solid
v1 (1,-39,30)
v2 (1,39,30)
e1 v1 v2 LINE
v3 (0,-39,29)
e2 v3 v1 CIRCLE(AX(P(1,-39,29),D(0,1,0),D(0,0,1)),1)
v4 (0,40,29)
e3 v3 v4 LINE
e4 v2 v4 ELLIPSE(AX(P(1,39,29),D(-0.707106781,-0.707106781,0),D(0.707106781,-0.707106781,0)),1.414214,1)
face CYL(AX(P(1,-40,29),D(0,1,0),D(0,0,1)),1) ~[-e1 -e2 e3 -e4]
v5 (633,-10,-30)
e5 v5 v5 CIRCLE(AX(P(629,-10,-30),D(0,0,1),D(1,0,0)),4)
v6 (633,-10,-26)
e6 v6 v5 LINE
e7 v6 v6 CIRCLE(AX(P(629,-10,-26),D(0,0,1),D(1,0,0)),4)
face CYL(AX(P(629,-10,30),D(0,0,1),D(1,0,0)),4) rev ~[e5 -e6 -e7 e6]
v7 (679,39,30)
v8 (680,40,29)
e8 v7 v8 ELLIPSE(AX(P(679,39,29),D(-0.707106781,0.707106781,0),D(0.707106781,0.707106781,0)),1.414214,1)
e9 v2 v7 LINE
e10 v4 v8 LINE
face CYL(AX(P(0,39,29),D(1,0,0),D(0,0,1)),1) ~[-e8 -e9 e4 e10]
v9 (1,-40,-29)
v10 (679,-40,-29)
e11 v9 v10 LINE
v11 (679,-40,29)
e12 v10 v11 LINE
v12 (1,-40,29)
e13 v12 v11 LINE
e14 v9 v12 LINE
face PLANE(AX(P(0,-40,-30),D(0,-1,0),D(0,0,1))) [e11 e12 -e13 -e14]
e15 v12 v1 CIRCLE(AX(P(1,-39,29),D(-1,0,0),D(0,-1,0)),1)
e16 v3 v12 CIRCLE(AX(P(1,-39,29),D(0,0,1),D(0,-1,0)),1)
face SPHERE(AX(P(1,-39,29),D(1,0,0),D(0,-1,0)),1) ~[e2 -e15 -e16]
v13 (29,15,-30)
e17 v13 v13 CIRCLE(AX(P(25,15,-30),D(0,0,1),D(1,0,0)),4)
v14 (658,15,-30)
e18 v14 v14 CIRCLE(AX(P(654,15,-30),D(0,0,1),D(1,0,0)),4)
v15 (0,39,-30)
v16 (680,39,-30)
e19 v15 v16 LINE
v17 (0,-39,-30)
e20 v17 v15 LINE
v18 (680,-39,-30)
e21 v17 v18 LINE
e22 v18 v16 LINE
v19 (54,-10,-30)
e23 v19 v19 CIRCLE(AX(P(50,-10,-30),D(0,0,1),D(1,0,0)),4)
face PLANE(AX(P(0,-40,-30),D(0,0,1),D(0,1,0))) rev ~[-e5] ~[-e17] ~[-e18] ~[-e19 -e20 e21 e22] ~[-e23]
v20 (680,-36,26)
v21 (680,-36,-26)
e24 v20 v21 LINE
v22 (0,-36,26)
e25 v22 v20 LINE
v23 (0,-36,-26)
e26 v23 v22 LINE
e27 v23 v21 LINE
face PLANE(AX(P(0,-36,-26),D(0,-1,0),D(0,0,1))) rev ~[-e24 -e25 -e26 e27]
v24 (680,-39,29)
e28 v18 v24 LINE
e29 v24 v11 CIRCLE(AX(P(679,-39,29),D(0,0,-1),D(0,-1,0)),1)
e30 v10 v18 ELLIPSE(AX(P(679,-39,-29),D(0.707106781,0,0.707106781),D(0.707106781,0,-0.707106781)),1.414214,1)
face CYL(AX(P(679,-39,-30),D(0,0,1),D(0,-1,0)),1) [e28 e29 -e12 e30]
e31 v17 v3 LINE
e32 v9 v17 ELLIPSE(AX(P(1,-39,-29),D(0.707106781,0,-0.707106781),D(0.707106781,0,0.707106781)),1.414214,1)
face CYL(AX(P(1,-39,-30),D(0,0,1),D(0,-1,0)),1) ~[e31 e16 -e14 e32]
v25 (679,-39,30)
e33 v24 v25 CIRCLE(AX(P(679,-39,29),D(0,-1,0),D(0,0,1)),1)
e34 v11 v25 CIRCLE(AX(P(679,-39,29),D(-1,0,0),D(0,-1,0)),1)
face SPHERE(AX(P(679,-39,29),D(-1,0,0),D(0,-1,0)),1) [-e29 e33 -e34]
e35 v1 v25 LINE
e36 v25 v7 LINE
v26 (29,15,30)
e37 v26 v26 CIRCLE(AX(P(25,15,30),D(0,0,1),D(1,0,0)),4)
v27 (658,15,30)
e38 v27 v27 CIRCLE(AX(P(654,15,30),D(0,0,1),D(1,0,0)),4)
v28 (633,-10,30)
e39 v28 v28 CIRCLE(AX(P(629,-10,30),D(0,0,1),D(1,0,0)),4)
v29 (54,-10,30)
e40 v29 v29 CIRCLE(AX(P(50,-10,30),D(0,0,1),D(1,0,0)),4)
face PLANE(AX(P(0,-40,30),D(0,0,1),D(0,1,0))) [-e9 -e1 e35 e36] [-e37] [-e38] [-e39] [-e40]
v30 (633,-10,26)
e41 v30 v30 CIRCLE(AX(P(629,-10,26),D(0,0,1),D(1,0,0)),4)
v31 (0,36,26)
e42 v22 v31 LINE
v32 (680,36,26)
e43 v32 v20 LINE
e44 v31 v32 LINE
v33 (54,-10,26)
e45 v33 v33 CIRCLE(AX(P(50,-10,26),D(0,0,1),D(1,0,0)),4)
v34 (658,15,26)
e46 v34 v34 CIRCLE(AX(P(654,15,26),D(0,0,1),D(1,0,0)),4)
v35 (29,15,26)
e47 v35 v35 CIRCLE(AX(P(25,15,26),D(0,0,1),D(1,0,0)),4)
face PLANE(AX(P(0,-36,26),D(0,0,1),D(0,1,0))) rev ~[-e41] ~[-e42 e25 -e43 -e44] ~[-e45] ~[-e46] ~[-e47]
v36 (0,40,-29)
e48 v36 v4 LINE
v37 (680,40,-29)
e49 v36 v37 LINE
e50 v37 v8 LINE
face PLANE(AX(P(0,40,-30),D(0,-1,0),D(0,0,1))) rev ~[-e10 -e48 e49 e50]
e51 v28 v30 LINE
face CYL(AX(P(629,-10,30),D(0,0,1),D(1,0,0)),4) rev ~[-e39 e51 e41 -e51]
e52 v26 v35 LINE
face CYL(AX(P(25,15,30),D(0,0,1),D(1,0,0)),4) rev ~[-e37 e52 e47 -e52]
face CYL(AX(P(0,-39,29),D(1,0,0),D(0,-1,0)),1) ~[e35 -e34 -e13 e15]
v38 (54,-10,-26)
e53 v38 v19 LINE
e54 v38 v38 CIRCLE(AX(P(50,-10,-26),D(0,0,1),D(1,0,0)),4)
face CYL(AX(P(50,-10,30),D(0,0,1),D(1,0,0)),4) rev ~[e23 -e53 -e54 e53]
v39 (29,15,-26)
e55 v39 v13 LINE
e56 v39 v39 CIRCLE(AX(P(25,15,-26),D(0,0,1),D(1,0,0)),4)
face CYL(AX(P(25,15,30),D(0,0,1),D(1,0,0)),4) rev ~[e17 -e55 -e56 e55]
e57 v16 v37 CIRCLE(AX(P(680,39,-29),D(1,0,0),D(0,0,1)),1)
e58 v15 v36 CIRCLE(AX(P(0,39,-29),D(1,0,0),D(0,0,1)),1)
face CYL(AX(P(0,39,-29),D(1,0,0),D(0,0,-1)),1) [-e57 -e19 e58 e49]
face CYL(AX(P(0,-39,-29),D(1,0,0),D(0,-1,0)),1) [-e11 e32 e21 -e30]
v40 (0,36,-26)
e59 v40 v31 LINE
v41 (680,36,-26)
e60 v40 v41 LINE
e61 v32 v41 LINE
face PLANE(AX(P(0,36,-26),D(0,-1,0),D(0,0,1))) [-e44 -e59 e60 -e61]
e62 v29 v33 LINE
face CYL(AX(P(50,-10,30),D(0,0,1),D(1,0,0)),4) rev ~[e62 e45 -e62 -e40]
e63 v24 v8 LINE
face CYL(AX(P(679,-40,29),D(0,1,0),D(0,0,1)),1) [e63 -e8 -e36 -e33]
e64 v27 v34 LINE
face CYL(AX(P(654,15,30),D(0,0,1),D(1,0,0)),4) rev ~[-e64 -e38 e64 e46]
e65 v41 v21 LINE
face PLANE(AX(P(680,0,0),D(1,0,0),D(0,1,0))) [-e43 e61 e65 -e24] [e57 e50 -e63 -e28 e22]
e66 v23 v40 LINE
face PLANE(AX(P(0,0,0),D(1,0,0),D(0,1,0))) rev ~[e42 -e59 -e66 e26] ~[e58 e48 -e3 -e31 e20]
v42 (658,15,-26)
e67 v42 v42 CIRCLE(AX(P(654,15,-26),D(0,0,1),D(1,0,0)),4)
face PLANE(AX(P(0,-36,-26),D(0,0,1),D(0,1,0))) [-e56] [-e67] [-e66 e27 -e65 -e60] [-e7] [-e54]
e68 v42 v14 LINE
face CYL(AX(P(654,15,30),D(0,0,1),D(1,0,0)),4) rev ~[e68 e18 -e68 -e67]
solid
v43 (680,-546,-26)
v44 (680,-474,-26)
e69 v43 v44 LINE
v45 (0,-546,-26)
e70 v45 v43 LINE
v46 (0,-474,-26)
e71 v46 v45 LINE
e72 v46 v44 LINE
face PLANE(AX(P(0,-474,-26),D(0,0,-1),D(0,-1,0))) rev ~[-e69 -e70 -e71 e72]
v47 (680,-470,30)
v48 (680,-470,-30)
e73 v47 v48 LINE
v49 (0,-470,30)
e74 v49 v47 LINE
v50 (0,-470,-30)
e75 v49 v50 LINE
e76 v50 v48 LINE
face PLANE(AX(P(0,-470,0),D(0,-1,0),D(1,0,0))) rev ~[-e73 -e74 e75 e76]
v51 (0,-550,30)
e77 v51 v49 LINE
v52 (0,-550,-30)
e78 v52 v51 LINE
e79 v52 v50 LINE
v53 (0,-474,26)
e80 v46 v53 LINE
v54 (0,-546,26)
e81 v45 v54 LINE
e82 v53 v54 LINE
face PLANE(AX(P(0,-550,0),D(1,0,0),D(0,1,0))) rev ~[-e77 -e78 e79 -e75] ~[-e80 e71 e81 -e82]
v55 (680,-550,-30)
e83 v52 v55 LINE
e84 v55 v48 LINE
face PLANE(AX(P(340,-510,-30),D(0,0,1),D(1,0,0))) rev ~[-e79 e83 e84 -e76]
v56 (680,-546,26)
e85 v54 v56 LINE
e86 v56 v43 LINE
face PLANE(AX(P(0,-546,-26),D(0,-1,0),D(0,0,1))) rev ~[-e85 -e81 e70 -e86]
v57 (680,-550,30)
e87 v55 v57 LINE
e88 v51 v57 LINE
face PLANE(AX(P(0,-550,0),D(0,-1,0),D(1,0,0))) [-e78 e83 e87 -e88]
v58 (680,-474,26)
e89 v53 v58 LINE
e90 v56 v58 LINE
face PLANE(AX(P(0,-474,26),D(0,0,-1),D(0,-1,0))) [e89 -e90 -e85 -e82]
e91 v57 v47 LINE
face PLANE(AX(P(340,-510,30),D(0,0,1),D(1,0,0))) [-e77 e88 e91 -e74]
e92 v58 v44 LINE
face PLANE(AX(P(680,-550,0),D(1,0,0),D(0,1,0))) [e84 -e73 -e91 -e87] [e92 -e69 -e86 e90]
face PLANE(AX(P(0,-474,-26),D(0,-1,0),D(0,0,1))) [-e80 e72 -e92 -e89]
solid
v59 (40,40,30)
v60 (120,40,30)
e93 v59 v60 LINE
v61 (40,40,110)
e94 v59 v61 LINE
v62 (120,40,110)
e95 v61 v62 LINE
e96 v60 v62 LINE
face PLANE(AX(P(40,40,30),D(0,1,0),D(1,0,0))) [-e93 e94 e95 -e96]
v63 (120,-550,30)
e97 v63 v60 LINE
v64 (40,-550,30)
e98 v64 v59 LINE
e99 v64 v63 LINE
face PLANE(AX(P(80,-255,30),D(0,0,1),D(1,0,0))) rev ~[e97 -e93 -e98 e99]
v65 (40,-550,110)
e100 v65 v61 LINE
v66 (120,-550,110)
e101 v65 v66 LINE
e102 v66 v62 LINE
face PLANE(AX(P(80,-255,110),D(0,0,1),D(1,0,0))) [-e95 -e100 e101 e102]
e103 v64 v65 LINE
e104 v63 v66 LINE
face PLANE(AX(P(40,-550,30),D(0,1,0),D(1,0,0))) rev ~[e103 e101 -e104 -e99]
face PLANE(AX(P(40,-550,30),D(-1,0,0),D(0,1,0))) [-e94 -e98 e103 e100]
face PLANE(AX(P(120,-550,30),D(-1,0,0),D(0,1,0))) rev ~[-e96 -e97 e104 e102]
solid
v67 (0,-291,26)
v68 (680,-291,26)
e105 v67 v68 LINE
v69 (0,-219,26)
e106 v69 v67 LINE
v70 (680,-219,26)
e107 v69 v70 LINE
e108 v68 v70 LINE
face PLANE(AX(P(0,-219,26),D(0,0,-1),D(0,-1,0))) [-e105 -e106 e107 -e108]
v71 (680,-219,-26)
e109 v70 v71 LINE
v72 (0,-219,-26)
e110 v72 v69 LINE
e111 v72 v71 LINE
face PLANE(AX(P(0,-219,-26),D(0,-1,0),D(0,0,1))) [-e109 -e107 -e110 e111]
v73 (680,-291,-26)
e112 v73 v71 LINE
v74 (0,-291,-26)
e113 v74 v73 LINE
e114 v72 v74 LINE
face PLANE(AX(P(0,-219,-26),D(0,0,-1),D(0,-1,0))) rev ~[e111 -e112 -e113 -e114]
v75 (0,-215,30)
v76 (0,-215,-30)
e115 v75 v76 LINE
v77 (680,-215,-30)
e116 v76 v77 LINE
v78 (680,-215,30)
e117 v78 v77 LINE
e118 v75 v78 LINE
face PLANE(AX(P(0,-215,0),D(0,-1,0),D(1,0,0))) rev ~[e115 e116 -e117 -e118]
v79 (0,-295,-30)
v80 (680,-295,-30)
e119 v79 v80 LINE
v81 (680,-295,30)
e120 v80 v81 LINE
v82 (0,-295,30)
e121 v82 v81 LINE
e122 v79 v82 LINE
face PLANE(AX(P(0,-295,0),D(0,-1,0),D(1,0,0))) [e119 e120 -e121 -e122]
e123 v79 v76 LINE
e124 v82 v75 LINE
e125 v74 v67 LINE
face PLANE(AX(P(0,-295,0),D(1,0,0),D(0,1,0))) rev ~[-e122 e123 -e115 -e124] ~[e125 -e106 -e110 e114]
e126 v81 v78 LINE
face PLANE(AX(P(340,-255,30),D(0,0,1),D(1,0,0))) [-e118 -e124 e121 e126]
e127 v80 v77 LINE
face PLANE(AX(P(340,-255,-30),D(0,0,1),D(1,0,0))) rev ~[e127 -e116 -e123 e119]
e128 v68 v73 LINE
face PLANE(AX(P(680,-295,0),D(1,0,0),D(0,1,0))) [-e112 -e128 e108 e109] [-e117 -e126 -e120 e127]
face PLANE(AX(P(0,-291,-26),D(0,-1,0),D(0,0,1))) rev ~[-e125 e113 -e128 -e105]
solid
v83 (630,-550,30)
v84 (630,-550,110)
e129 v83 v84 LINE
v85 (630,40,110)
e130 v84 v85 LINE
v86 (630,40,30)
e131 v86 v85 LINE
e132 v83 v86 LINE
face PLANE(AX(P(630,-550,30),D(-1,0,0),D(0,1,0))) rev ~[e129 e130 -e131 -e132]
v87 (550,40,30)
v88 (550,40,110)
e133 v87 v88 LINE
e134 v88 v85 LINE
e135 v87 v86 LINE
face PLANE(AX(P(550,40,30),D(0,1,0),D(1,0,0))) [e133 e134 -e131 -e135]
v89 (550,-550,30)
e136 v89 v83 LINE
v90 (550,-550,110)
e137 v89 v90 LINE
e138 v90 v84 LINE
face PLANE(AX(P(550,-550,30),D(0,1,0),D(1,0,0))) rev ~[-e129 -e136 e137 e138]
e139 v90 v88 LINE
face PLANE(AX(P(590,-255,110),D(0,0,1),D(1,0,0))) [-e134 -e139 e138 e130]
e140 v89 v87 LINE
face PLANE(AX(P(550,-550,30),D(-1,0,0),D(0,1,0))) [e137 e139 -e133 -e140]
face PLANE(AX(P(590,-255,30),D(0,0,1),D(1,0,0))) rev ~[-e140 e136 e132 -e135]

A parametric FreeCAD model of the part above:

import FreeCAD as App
import Part
import Sketcher
from FreeCAD import Vector


def edges_at(feature, points):
    """Names of the edges that pass closest to the given points."""
    edges = feature.Shape.Edges
    near = lambda p: min(range(len(edges)), key=lambda i: edges[i].distToShape(Part.Vertex(*p))[0])
    return sorted({f"Edge{near(p) + 1}" for p in points})


def add_polygon(sketch, points):
    """Adds a closed chain of lines whose ends are joined by coincident constraints."""
    first, n = sketch.GeometryCount, len(points)
    for a, b in zip(points, points[1:] + points[:1]):
        sketch.addGeometry(Part.LineSegment(App.Vector(*a, 0), App.Vector(*b, 0)), False)
    for i in range(n):
        sketch.addConstraint(Sketcher.Constraint("Coincident", first + i, 2, first + (i + 1) % n, 1))

doc = App.newDocument("Part")
body = doc.addObject("PartDesign::Body", "Body")

sketch1 = body.newObject("Sketcher::SketchObject", "Sketch")
sketch1.AttachmentSupport = (doc.getObject("YZ_Plane"), [""])
sketch1.MapMode = "FlatFace"
add_polygon(sketch1, [(-40, 30), (-40, -30), (40, -30), (40, 30)])
sketch1.addConstraint(Sketcher.Constraint("Vertical", 0))
sketch1.addConstraint(Sketcher.Constraint("Horizontal", 1))
sketch1.addConstraint(Sketcher.Constraint("Vertical", 2))
sketch1.addConstraint(Sketcher.Constraint("Horizontal", 3))
sketch1.addConstraint(Sketcher.Constraint("Symmetric", 0, 2, 2, 2, -1, 1))
sketch1.addConstraint(Sketcher.Constraint("DistanceX", 1, 1, 1, 2, 80.0))
sketch1.addConstraint(Sketcher.Constraint("DistanceY", 0, 2, 0, 1, 60.0))
pad1 = body.newObject("PartDesign::Pad", "Pad")
pad1.Profile = sketch1
pad1.Length = 680

sketch2 = body.newObject("Sketcher::SketchObject", "Sketch001")
sketch2.AttachmentSupport = (doc.getObject("YZ_Plane"), [""])
sketch2.MapMode = "FlatFace"
add_polygon(sketch2, [(-36, 26), (-36, -26), (36, -26), (36, 26)])
sketch2.addConstraint(Sketcher.Constraint("Vertical", 0))
sketch2.addConstraint(Sketcher.Constraint("Horizontal", 1))
sketch2.addConstraint(Sketcher.Constraint("Vertical", 2))
sketch2.addConstraint(Sketcher.Constraint("Horizontal", 3))
sketch2.addConstraint(Sketcher.Constraint("Symmetric", 0, 2, 2, 2, -1, 1))
sketch2.addConstraint(Sketcher.Constraint("DistanceX", 1, 1, 1, 2, 72.0))
sketch2.addConstraint(Sketcher.Constraint("DistanceY", 0, 2, 0, 1, 52.0))
pocket1 = body.newObject("PartDesign::Pocket", "Pocket")
pocket1.Profile = sketch2
pocket1.Type = "ThroughAll"
pocket1.Reversed = True
doc.recompute()

fillet = body.newObject("PartDesign::Fillet", "Fillet")
fillet.Base = (pocket1, edges_at(pocket1, [
    (340, -40, 30),
    (340, -40, -30),
    (0, -40, 0),
    (680, -40, 0),
    (340, 40, 30),
    (0, 0, 30),
    (680, 0, 30),
    (340, 40, -30),
]))
fillet.Radius = 1

sketch3 = body.newObject("Sketcher::SketchObject", "Sketch002")
sketch3.AttachmentSupport = (doc.getObject("XY_Plane"), [""])
sketch3.MapMode = "FlatFace"
sketch3.AttachmentOffset = App.Placement(Vector(0, 0, 30), App.Rotation())
sketch3.addGeometry(Part.Circle(Vector(25, 15, 0), Vector(0, 0, 1), 4), False)
sketch3.addGeometry(Part.Circle(Vector(50, -10, 0), Vector(0, 0, 1), 4), False)
sketch3.addGeometry(Part.Circle(Vector(654, 15, 0), Vector(0, 0, 1), 4), False)
sketch3.addGeometry(Part.Circle(Vector(629, -10, 0), Vector(0, 0, 1), 4), False)
sketch3.addConstraint(Sketcher.Constraint("Equal", 0, 1))
sketch3.addConstraint(Sketcher.Constraint("Equal", 1, 2))
sketch3.addConstraint(Sketcher.Constraint("Equal", 2, 3))
sketch3.addConstraint(Sketcher.Constraint("Horizontal", 0, 3, 2, 3))
sketch3.addConstraint(Sketcher.Constraint("Horizontal", 1, 3, 3, 3))
sketch3.addConstraint(Sketcher.Constraint("Diameter", 0, 8.0))
sketch3.addConstraint(Sketcher.Constraint("DistanceX", -1, 1, 0, 3, 25.0))
sketch3.addConstraint(Sketcher.Constraint("DistanceY", -1, 1, 0, 3, 15.0))
sketch3.addConstraint(Sketcher.Constraint("DistanceX", -1, 1, 1, 3, 50.0))
sketch3.addConstraint(Sketcher.Constraint("DistanceY", 1, 3, -1, 1, 10.0))
sketch3.addConstraint(Sketcher.Constraint("DistanceX", -1, 1, 2, 3, 654.0))
sketch3.addConstraint(Sketcher.Constraint("DistanceX", -1, 1, 3, 3, 629.0))
pocket2 = body.newObject("PartDesign::Pocket", "Pocket001")
pocket2.Profile = sketch3
pocket2.Length = 254
body2 = doc.addObject("PartDesign::Body", "Body001")

sketch4 = body2.newObject("Sketcher::SketchObject", "Sketch003")
sketch4.AttachmentSupport = (doc.getObject("XY_Plane001"), [""])
sketch4.MapMode = "FlatFace"
add_polygon(sketch4, [(0, -470), (0, -550), (680, -550), (680, -470)])
sketch4.addConstraint(Sketcher.Constraint("Vertical", 0))
sketch4.addConstraint(Sketcher.Constraint("Horizontal", 1))
sketch4.addConstraint(Sketcher.Constraint("Vertical", 2))
sketch4.addConstraint(Sketcher.Constraint("Horizontal", 3))
sketch4.addConstraint(Sketcher.Constraint("PointOnObject", 0, 2, -2))
sketch4.addConstraint(Sketcher.Constraint("DistanceX", 1, 1, 1, 2, 680.0))
sketch4.addConstraint(Sketcher.Constraint("DistanceY", 0, 2, 0, 1, 80.0))
sketch4.addConstraint(Sketcher.Constraint("DistanceY", 0, 2, -1, 1, 550.0))
pad2 = body2.newObject("PartDesign::Pad", "Pad001")
pad2.Profile = sketch4
pad2.Length = 60
pad2.Midplane = True

sketch5 = body2.newObject("Sketcher::SketchObject", "Sketch004")
sketch5.AttachmentSupport = (doc.getObject("YZ_Plane001"), [""])
sketch5.MapMode = "FlatFace"
add_polygon(sketch5, [(-474, 26), (-474, -26), (-546, -26), (-546, 26)])
sketch5.addConstraint(Sketcher.Constraint("Vertical", 0))
sketch5.addConstraint(Sketcher.Constraint("Horizontal", 1))
sketch5.addConstraint(Sketcher.Constraint("Vertical", 2))
sketch5.addConstraint(Sketcher.Constraint("Horizontal", 3))
sketch5.addConstraint(Sketcher.Constraint("DistanceX", 1, 2, 1, 1, 72.0))
sketch5.addConstraint(Sketcher.Constraint("DistanceY", 0, 2, 0, 1, 52.0))
sketch5.addConstraint(Sketcher.Constraint("DistanceX", 0, 2, -1, 1, 474.0))
sketch5.addConstraint(Sketcher.Constraint("DistanceY", 0, 2, -1, 1, 26.0))
pocket3 = body2.newObject("PartDesign::Pocket", "Pocket002")
pocket3.Profile = sketch5
pocket3.Type = "ThroughAll"
pocket3.Reversed = True
body3 = doc.addObject("PartDesign::Body", "Body002")

sketch6 = body3.newObject("Sketcher::SketchObject", "Sketch005")
sketch6.AttachmentSupport = (doc.getObject("XY_Plane002"), [""])
sketch6.MapMode = "FlatFace"
add_polygon(sketch6, [(0, -215), (0, -295), (680, -295), (680, -215)])
sketch6.addConstraint(Sketcher.Constraint("Vertical", 0))
sketch6.addConstraint(Sketcher.Constraint("Horizontal", 1))
sketch6.addConstraint(Sketcher.Constraint("Vertical", 2))
sketch6.addConstraint(Sketcher.Constraint("Horizontal", 3))
sketch6.addConstraint(Sketcher.Constraint("PointOnObject", 0, 2, -2))
sketch6.addConstraint(Sketcher.Constraint("DistanceX", 1, 1, 1, 2, 680.0))
sketch6.addConstraint(Sketcher.Constraint("DistanceY", 0, 2, 0, 1, 80.0))
sketch6.addConstraint(Sketcher.Constraint("DistanceY", 0, 2, -1, 1, 295.0))
pad3 = body3.newObject("PartDesign::Pad", "Pad002")
pad3.Profile = sketch6
pad3.Length = 60
pad3.Midplane = True

sketch7 = body3.newObject("Sketcher::SketchObject", "Sketch006")
sketch7.AttachmentSupport = (doc.getObject("YZ_Plane002"), [""])
sketch7.MapMode = "FlatFace"
add_polygon(sketch7, [(-219, 26), (-219, -26), (-291, -26), (-291, 26)])
sketch7.addConstraint(Sketcher.Constraint("Vertical", 0))
sketch7.addConstraint(Sketcher.Constraint("Horizontal", 1))
sketch7.addConstraint(Sketcher.Constraint("Vertical", 2))
sketch7.addConstraint(Sketcher.Constraint("Horizontal", 3))
sketch7.addConstraint(Sketcher.Constraint("DistanceX", 1, 2, 1, 1, 72.0))
sketch7.addConstraint(Sketcher.Constraint("DistanceY", 0, 2, 0, 1, 52.0))
sketch7.addConstraint(Sketcher.Constraint("DistanceX", 0, 2, -1, 1, 219.0))
sketch7.addConstraint(Sketcher.Constraint("DistanceY", 0, 2, -1, 1, 26.0))
pocket4 = body3.newObject("PartDesign::Pocket", "Pocket003")
pocket4.Profile = sketch7
pocket4.Type = "ThroughAll"
pocket4.Reversed = True
body4 = doc.addObject("PartDesign::Body", "Body003")
body4.AllowCompound = True

sketch8 = body4.newObject("Sketcher::SketchObject", "Sketch007")
sketch8.AttachmentSupport = (doc.getObject("XY_Plane003"), [""])
sketch8.MapMode = "FlatFace"
sketch8.AttachmentOffset = App.Placement(Vector(0, 0, 30), App.Rotation())
add_polygon(sketch8, [(40, 40), (40, -550), (120, -550), (120, 40)])
add_polygon(sketch8, [(550, 40), (550, -550), (630, -550), (630, 40)])
sketch8.addConstraint(Sketcher.Constraint("Vertical", 0))
sketch8.addConstraint(Sketcher.Constraint("Horizontal", 1))
sketch8.addConstraint(Sketcher.Constraint("Vertical", 2))
sketch8.addConstraint(Sketcher.Constraint("Horizontal", 3))
sketch8.addConstraint(Sketcher.Constraint("Vertical", 4))
sketch8.addConstraint(Sketcher.Constraint("Horizontal", 5))
sketch8.addConstraint(Sketcher.Constraint("Vertical", 6))
sketch8.addConstraint(Sketcher.Constraint("Horizontal", 7))
sketch8.addConstraint(Sketcher.Constraint("Horizontal", 1, 2, 4, 2))
sketch8.addConstraint(Sketcher.Constraint("Horizontal", 3, 2, 6, 2))
sketch8.addConstraint(Sketcher.Constraint("Equal", 3, 5))
sketch8.addConstraint(Sketcher.Constraint("DistanceX", 1, 1, 1, 2, 80.0))
sketch8.addConstraint(Sketcher.Constraint("DistanceY", 0, 2, 0, 1, 590.0))
sketch8.addConstraint(Sketcher.Constraint("DistanceX", -1, 1, 0, 2, 40.0))
sketch8.addConstraint(Sketcher.Constraint("DistanceY", 0, 2, -1, 1, 550.0))
sketch8.addConstraint(Sketcher.Constraint("DistanceX", -1, 1, 4, 2, 550.0))
pad4 = body4.newObject("PartDesign::Pad", "Pad003")
pad4.Profile = sketch8
pad4.Length = 80

doc.recompute()
